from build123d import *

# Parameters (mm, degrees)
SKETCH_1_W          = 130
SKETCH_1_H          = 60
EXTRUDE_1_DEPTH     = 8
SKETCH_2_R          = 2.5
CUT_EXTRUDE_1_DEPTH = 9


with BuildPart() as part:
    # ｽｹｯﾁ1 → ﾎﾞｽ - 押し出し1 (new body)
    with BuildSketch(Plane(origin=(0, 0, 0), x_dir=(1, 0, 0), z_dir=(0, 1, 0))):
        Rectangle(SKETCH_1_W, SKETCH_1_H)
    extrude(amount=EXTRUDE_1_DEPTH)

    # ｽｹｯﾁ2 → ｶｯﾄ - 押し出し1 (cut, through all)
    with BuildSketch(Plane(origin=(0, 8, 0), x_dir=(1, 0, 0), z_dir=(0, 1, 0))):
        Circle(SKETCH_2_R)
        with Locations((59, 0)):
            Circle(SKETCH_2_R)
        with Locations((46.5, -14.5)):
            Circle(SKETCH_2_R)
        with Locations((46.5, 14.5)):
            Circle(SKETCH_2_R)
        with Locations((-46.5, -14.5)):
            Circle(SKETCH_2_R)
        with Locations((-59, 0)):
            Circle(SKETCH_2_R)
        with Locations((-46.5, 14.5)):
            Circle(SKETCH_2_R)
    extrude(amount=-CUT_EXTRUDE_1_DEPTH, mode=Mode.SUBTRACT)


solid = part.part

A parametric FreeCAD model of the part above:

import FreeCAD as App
import Part
import Sketcher

V = App.Vector


def add_polygon(sketch, points):
    """Adds a closed chain of lines whose ends are joined by coincident constraints."""
    first, n = sketch.GeometryCount, len(points)
    for a, b in zip(points, points[1:] + points[:1]):
        sketch.addGeometry(Part.LineSegment(App.Vector(*a, 0), App.Vector(*b, 0)), False)
    for i in range(n):
        sketch.addConstraint(Sketcher.Constraint("Coincident", first + i, 2, first + (i + 1) % n, 1))

doc = App.newDocument("Part")
body = doc.addObject("PartDesign::Body", "Body")

# Sketch on XZ plane
sketch1 = body.newObject("Sketcher::SketchObject", "Sketch")
sketch1.AttachmentSupport = (doc.getObject("XZ_Plane"), [""])
sketch1.MapMode = "FlatFace"
add_polygon(sketch1, [(-65, -30), (-65, 30), (65, 30), (65, -30)])  # lines 0-3
sketch1.addConstraint([
    Sketcher.Constraint("Vertical", 0),
    Sketcher.Constraint("Horizontal", 1),
    Sketcher.Constraint("Vertical", 2),
    Sketcher.Constraint("Horizontal", 3),
    Sketcher.Constraint("Symmetric", 0, 2, 2, 2, -1, 1),
    Sketcher.Constraint("DistanceX", 1, 1, 1, 2, 130.0),
    Sketcher.Constraint("DistanceY", 0, 1, 0, 2, 60.0),
])
pad1 = body.newObject("PartDesign::Pad", "Pad")
pad1.Profile = sketch1
pad1.Length = 8
pad1.Reversed = True

# Sketch on XZ plane
sketch2 = body.newObject("Sketcher::SketchObject", "Sketch001")
sketch2.AttachmentSupport = (doc.getObject("XZ_Plane"), [""])
sketch2.MapMode = "FlatFace"
sketch2.AttachmentOffset = App.Placement(V(0, 0, -8), App.Rotation())
sketch2.addGeometry([
    Part.Circle(V(0, 0, 0), V(0, 0, 1), 2.5),  # 0
    Part.Circle(V(59, 0, 0), V(0, 0, 1), 2.5),  # 1
    Part.Circle(V(46.5, 14.5, 0), V(0, 0, 1), 2.5),  # 2
    Part.Circle(V(46.5, -14.5, 0), V(0, 0, 1), 2.5),  # 3
    Part.Circle(V(-46.5, 14.5, 0), V(0, 0, 1), 2.5),  # 4
    Part.Circle(V(-59, 0, 0), V(0, 0, 1), 2.5),  # 5
    Part.Circle(V(-46.5, -14.5, 0), V(0, 0, 1), 2.5),  # 6
], False)
sketch2.addConstraint([
    Sketcher.Constraint("Coincident", 0, 3, -1, 1),
    Sketcher.Constraint("Equal", 0, 1),
    Sketcher.Constraint("Equal", 1, 2),
    Sketcher.Constraint("Equal", 2, 3),
    Sketcher.Constraint("Equal", 3, 4),
    Sketcher.Constraint("Equal", 4, 5),
    Sketcher.Constraint("Equal", 5, 6),
    Sketcher.Constraint("Symmetric", 3, 3, 4, 3, -1, 1),
    Sketcher.Constraint("Symmetric", 1, 3, 5, 3, -1, 1),
    Sketcher.Constraint("Symmetric", 2, 3, 6, 3, -1, 1),
    Sketcher.Constraint("Symmetric", 2, 3, 4, 3, -2),
    Sketcher.Constraint("PointOnObject", 1, 3, -1),
    Sketcher.Constraint("Diameter", 0, 5.0),
    Sketcher.Constraint("DistanceX", -1, 1, 1, 3, 59.0),
    Sketcher.Constraint("DistanceY", 3, 3, 2, 3, 29.0),
    Sketcher.Constraint("DistanceX", 4, 3, 2, 3, 93.0),
])
pocket1 = body.newObject("PartDesign::Pocket", "Pocket")
pocket1.Profile = sketch2
pocket1.Type = "ThroughAll"
pocket1.Reversed = True

doc.recompute()
